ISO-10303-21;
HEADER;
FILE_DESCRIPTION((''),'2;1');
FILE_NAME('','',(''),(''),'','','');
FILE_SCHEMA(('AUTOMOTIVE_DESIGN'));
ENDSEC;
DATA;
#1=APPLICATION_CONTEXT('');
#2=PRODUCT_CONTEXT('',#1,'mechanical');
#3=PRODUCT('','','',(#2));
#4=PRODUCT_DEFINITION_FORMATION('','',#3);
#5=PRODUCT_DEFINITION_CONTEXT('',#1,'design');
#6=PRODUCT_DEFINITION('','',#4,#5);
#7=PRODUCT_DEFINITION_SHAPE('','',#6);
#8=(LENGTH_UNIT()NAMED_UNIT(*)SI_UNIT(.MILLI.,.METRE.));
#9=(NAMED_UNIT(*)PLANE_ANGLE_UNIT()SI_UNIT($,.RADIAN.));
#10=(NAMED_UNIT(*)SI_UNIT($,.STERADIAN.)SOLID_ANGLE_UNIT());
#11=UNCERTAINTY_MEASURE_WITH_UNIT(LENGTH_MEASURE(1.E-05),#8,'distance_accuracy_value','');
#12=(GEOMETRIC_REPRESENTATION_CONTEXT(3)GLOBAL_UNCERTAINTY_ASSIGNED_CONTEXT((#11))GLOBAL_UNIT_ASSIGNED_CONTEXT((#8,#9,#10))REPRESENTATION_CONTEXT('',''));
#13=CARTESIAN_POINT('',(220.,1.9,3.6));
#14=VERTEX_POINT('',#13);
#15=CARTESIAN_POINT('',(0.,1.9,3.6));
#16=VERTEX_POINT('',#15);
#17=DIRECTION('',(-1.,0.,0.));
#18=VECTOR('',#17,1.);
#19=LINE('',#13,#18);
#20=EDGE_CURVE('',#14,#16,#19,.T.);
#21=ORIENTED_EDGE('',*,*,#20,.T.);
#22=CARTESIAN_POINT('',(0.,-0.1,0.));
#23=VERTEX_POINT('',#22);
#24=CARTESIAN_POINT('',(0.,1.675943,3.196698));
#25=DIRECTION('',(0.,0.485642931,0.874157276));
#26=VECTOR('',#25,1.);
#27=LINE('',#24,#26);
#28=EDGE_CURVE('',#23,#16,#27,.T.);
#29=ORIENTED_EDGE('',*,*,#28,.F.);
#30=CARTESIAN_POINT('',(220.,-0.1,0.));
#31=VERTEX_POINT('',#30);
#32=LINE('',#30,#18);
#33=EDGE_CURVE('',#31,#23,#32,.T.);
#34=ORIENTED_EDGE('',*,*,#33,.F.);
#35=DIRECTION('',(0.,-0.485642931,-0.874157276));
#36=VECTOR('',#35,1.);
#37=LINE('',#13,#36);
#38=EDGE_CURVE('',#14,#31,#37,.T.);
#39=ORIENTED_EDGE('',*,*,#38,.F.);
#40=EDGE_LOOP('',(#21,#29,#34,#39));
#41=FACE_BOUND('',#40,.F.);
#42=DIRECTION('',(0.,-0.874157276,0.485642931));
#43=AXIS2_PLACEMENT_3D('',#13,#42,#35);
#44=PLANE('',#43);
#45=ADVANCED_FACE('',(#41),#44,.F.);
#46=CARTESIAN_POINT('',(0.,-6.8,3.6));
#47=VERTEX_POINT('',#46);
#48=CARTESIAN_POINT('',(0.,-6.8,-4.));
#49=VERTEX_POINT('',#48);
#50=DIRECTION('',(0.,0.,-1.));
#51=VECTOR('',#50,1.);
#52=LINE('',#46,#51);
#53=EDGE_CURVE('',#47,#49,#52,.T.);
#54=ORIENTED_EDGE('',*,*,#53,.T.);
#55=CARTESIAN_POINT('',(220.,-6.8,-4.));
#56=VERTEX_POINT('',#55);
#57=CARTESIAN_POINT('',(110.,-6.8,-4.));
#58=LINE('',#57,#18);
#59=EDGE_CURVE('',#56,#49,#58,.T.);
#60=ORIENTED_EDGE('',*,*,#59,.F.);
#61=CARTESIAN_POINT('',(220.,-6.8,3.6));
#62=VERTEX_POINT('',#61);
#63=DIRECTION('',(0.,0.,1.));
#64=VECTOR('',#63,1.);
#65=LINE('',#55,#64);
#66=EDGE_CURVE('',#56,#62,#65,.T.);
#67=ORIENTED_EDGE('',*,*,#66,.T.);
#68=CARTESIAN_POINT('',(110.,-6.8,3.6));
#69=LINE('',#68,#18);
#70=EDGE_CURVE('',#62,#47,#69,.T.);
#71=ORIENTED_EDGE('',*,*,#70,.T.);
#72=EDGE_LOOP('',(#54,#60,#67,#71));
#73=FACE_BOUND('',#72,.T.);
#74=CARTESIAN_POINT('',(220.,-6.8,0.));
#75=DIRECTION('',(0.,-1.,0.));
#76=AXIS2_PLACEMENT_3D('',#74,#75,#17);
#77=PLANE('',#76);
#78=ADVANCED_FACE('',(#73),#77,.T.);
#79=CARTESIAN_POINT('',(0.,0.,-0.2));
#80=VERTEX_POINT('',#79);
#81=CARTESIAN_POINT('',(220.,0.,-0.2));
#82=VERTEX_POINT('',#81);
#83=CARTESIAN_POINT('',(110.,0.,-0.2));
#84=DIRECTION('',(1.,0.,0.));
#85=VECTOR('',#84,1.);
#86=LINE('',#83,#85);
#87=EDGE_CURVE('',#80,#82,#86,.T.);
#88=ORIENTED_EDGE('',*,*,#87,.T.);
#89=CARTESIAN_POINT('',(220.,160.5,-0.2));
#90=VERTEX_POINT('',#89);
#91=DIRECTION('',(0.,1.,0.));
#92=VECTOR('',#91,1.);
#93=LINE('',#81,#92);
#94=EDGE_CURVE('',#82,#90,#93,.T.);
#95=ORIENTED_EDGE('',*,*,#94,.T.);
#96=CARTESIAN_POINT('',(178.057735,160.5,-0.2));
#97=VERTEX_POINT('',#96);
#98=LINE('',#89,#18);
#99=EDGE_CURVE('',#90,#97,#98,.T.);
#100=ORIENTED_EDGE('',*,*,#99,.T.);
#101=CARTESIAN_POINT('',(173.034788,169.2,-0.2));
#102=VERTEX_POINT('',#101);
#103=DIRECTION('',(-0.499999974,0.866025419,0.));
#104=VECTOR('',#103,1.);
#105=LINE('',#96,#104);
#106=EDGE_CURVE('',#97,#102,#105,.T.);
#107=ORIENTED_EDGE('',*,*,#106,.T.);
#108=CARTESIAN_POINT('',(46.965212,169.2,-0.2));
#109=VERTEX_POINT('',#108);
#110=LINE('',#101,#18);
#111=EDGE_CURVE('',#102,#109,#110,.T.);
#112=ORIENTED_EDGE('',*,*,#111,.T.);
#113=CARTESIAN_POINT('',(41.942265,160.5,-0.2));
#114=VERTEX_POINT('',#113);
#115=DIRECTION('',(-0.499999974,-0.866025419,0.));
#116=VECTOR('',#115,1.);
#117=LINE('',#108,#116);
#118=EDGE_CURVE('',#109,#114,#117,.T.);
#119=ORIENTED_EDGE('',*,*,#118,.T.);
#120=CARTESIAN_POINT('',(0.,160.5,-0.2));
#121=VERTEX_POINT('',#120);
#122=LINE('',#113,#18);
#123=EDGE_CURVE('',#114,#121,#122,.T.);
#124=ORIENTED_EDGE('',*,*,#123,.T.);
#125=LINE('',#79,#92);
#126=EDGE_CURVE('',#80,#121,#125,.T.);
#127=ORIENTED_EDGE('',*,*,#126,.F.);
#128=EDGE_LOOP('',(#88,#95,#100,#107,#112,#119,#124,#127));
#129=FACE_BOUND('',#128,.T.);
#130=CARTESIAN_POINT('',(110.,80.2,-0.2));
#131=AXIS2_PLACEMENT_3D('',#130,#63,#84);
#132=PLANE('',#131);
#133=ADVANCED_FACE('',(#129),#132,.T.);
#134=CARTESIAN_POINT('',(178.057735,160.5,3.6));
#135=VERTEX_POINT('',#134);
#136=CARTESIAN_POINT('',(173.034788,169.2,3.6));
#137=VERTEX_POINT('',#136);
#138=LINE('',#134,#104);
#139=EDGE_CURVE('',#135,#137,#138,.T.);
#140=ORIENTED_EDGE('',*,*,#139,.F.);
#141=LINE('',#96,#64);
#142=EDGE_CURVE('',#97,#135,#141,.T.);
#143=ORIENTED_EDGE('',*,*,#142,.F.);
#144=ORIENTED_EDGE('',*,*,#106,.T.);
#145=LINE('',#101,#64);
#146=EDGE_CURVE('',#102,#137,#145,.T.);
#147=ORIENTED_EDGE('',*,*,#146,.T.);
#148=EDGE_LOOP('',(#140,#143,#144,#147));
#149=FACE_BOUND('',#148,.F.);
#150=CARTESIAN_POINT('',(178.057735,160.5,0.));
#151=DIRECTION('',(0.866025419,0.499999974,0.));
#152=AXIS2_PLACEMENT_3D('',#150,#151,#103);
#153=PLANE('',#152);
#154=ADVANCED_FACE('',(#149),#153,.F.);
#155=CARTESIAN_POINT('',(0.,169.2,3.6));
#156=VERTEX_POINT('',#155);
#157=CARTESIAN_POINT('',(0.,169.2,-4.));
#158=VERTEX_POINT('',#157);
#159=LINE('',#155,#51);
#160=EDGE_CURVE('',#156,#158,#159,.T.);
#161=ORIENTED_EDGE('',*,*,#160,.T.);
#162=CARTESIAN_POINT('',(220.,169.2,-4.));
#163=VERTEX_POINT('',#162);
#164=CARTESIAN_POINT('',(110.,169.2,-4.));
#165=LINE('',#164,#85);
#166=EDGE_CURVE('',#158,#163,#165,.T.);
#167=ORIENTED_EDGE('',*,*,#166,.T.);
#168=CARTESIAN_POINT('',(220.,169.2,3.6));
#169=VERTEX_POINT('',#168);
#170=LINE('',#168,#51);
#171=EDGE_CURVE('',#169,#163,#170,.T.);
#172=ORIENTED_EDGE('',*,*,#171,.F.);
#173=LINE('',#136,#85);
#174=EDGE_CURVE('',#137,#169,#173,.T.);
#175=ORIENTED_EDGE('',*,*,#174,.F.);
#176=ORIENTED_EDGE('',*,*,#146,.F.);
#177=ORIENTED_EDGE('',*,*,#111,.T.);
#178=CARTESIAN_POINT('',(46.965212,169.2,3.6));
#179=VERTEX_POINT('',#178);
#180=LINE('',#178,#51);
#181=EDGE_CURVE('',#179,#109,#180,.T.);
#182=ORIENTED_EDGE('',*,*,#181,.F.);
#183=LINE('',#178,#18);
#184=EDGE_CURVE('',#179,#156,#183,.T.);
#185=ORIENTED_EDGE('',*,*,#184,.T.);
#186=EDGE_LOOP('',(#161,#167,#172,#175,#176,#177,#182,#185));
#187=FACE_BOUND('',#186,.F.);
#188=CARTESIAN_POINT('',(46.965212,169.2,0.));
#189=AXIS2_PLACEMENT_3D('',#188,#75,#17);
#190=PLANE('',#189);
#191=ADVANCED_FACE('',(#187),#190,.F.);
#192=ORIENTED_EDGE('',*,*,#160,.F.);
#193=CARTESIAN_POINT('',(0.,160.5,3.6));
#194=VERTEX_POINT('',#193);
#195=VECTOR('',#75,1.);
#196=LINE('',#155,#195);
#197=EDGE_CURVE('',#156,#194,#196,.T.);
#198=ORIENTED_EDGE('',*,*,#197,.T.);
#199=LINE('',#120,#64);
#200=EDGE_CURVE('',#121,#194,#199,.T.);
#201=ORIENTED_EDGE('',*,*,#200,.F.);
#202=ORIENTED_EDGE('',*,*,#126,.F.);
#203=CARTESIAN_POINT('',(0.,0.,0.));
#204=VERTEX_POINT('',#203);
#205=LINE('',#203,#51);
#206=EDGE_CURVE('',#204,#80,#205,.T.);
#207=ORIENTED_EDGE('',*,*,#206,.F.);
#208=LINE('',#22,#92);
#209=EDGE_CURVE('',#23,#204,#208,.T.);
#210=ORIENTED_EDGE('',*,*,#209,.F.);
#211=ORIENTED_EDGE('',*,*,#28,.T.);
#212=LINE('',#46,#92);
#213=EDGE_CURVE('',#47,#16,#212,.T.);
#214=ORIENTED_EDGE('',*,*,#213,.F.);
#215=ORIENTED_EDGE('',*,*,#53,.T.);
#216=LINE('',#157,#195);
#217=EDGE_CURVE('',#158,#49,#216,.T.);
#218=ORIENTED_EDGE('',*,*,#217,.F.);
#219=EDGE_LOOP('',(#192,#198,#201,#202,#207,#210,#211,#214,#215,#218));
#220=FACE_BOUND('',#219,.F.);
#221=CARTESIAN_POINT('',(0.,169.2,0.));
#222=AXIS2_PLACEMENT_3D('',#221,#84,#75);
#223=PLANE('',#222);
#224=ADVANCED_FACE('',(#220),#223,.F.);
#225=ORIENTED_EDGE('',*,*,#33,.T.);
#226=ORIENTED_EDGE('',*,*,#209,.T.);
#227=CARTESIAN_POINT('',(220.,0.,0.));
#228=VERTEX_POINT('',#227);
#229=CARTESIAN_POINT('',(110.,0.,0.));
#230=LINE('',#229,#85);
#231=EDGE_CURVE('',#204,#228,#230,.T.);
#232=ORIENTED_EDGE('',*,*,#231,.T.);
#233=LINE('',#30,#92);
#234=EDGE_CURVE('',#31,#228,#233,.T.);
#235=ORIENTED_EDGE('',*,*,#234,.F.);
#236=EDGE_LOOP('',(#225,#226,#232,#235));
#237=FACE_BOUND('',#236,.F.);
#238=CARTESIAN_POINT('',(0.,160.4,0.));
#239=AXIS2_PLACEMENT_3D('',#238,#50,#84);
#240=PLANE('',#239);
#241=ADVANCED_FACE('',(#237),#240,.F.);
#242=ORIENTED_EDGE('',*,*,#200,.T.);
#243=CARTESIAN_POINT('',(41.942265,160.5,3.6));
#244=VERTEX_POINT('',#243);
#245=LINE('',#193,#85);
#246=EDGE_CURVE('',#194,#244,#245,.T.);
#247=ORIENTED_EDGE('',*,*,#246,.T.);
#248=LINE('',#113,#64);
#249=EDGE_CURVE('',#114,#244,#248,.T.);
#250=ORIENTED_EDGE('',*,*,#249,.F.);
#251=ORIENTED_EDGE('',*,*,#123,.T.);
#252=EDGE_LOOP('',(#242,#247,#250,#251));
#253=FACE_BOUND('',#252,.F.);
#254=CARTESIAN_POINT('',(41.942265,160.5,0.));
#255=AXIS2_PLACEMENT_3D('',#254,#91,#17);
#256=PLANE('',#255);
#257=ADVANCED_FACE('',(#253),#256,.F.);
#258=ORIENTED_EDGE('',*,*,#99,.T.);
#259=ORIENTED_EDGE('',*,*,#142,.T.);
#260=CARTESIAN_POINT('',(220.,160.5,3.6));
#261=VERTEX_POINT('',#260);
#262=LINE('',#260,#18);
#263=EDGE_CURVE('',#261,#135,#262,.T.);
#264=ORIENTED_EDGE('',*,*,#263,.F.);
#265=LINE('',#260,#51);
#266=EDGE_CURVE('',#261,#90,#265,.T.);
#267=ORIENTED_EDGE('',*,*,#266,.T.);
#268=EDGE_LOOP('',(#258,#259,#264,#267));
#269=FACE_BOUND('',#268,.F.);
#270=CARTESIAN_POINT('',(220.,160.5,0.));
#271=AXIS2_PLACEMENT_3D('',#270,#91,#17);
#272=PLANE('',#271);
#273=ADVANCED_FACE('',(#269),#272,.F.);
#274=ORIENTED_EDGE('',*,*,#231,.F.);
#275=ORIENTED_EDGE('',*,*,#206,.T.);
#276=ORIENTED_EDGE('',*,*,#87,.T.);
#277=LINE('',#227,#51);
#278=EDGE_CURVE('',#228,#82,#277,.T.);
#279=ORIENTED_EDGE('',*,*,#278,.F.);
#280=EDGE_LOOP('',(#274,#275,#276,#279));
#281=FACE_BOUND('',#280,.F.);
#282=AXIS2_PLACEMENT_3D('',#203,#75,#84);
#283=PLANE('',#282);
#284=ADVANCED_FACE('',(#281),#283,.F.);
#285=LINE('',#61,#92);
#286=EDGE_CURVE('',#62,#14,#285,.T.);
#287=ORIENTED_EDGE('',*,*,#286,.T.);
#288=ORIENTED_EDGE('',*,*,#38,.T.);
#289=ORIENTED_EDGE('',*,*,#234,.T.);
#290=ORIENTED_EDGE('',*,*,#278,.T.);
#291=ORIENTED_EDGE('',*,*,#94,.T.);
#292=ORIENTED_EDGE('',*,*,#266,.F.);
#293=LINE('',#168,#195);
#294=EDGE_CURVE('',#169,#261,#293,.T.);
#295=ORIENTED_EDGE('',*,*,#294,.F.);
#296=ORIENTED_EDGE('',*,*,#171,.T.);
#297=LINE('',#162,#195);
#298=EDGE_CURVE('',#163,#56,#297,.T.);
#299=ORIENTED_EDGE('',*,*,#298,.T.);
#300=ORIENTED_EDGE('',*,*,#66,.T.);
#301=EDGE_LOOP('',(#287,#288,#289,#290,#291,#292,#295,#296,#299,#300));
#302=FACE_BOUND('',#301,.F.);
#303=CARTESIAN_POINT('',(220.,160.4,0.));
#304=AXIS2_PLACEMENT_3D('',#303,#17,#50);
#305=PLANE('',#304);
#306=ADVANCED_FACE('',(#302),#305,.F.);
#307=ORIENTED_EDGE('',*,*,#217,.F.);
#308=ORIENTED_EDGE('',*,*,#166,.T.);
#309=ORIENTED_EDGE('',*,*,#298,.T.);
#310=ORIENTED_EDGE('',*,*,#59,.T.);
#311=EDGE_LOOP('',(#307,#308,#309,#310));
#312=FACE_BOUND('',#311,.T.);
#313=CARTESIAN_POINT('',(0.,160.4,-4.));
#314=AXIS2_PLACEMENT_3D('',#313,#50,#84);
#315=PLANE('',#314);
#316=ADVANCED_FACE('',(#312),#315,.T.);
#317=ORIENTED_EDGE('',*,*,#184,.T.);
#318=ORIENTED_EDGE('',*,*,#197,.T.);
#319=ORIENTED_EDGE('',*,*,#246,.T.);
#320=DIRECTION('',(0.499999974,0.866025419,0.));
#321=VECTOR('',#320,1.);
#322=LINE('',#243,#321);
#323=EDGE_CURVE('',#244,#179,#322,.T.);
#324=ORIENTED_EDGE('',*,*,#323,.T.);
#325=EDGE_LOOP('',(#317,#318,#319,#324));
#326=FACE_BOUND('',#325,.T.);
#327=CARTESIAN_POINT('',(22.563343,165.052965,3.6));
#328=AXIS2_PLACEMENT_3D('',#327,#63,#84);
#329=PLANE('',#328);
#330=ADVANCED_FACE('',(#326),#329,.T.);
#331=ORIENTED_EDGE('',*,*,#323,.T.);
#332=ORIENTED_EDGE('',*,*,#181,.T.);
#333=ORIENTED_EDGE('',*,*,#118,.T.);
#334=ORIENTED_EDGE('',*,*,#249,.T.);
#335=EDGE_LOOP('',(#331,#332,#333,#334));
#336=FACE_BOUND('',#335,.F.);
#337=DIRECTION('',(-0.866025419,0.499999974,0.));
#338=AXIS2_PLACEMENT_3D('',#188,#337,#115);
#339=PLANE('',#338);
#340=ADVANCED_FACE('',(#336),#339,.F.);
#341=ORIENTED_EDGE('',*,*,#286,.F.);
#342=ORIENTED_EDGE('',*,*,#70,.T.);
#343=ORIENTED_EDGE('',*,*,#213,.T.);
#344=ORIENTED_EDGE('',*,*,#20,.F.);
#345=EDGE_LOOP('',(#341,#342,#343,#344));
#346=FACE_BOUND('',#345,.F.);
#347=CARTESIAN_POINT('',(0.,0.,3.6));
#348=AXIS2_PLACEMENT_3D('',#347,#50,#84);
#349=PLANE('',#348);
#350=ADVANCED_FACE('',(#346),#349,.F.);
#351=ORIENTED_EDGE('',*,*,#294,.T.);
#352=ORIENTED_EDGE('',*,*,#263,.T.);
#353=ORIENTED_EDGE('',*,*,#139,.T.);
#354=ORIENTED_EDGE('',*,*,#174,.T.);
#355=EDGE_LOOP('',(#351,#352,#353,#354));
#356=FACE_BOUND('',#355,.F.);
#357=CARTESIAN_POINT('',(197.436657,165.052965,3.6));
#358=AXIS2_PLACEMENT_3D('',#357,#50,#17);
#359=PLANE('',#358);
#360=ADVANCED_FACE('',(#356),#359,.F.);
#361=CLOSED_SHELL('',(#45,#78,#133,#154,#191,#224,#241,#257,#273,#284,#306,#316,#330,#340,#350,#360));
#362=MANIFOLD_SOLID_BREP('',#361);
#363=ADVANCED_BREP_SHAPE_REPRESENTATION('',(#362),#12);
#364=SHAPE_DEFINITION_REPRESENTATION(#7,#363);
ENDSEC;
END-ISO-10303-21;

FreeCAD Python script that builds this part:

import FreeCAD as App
import Part
import Sketcher

V = App.Vector
Q = App.Units.Quantity


def add_polygon(sketch, points):
    """Adds a closed chain of lines whose ends are joined by coincident constraints."""
    first, n = sketch.GeometryCount, len(points)
    for a, b in zip(points, points[1:] + points[:1]):
        sketch.addGeometry(Part.LineSegment(App.Vector(*a, 0), App.Vector(*b, 0)), False)
    for i in range(n):
        sketch.addConstraint(Sketcher.Constraint("Coincident", first + i, 2, first + (i + 1) % n, 1))

doc = App.newDocument("Part")
body = doc.addObject("PartDesign::Body", "Body")

# Sketch on XY plane
sketch1 = doc.addObject("Sketcher::SketchObject", "Sketch")
body.addObject(sketch1)
sketch1.AttachmentSupport = (doc.XY_Plane, [""])
sketch1.MapMode = "FlatFace"
add_polygon(sketch1, [(0, 160.4), (0, 0), (220, 0), (220, 160.4)])  # lines 0-3
sketch1.addConstraint([
    Sketcher.Constraint("Vertical", 0),
    Sketcher.Constraint("Horizontal", 1),
    Sketcher.Constraint("Vertical", 2),
    Sketcher.Constraint("Horizontal", 3),
    Sketcher.Constraint("Coincident", 0, 2, -1, 1),
    Sketcher.Constraint("DistanceX", 1, 1, 1, 2, Q("220 mm")),
    Sketcher.Constraint("DistanceY", 0, 2, 0, 1, Q("160.4 mm")),
])
pad1 = doc.addObject("PartDesign::Pad", "Pad")
body.addObject(pad1)
pad1.Profile = sketch1
pad1.Length = 4
pad1.Reversed = True

# Sketch on XZ plane
sketch2 = doc.addObject("Sketcher::SketchObject", "Sketch001")
body.addObject(sketch2)
sketch2.AttachmentSupport = (doc.XZ_Plane, [""])
sketch2.MapMode = "FlatFace"
add_polygon(sketch2, [(220, -4), (220, 0), (0, 0), (0, -4)])  # lines 0-3
sketch2.addConstraint([
    Sketcher.Constraint("Vertical", 0),
    Sketcher.Constraint("Horizontal", 1),
    Sketcher.Constraint("Vertical", 2),
    Sketcher.Constraint("Horizontal", 3),
    Sketcher.Constraint("Coincident", 1, 2, -1, 1),
    Sketcher.Constraint("DistanceX", 1, 2, 1, 1, Q("220 mm")),
    Sketcher.Constraint("DistanceY", 0, 1, 0, 2, Q("4 mm")),
])
pad2 = doc.addObject("PartDesign::Pad", "Pad001")
body.addObject(pad2)
pad2.Profile = sketch2
pad2.Length = 6.8

# Sketch on XY plane
sketch3 = doc.addObject("Sketcher::SketchObject", "Sketch002")
body.addObject(sketch3)
sketch3.AttachmentSupport = (doc.XY_Plane, [""])
sketch3.MapMode = "FlatFace"
add_polygon(sketch3, [(0, -6.8), (220, -6.8), (220, 0), (0, 0)])  # lines 0-3
sketch3.addConstraint([
    Sketcher.Constraint("Horizontal", 0),
    Sketcher.Constraint("Vertical", 1),
    Sketcher.Constraint("Horizontal", 2),
    Sketcher.Constraint("Vertical", 3),
    Sketcher.Constraint("Coincident", 2, 2, -1, 1),
    Sketcher.Constraint("DistanceX", 0, 1, 0, 2, Q("220 mm")),
    Sketcher.Constraint("DistanceY", 1, 1, 1, 2, Q("6.8 mm")),
])
pad3 = doc.addObject("PartDesign::Pad", "Pad002")
body.addObject(pad3)
pad3.Profile = sketch3
pad3.Length = 3.6

# Sketch on XZ plane
sketch4 = doc.addObject("Sketcher::SketchObject", "Sketch003")
body.addObject(sketch4)
sketch4.AttachmentSupport = (doc.XZ_Plane, [""])
sketch4.MapMode = "FlatFace"
add_polygon(sketch4, [(0, 0), (0, 3.6), (220, 3.6), (220, 0)])  # lines 0-3
sketch4.addConstraint([
    Sketcher.Constraint("Vertical", 0),
    Sketcher.Constraint("Horizontal", 1),
    Sketcher.Constraint("Vertical", 2),
    Sketcher.Constraint("Horizontal", 3),
    Sketcher.Constraint("Coincident", 3, 2, -1, 1),
    Sketcher.Constraint("DistanceX", 1, 1, 1, 2, Q("220 mm")),
    Sketcher.Constraint("DistanceY", 0, 1, 0, 2, Q("3.6 mm")),
])
pad4 = doc.addObject("PartDesign::Pad", "Pad003")
body.addObject(pad4)
pad4.Profile = sketch4
pad4.Length = 2
pad4.Reversed = True

# Sketch on YZ plane
sketch5 = doc.addObject("Sketcher::SketchObject", "Sketch004")
body.addObject(sketch5)
sketch5.AttachmentSupport = (doc.YZ_Plane, [""])
sketch5.MapMode = "FlatFace"
sketch5.AttachmentOffset = App.Placement(V(0, 0, 220), App.Rotation())
add_polygon(sketch5, [(-0.1, 0), (2, 0), (2, 3.6), (1.9, 3.6)])  # lines 0-3
sketch5.addConstraint([
    Sketcher.Constraint("Horizontal", 0),
    Sketcher.Constraint("Vertical", 1),
    Sketcher.Constraint("Horizontal", 2),
    Sketcher.Constraint("PointOnObject", 0, 2, -1),
    Sketcher.Constraint("DistanceX", 0, 1, 0, 2, Q("2.1 mm")),
    Sketcher.Constraint("DistanceX", 2, 2, 2, 1, Q("0.1 mm")),
    Sketcher.Constraint("DistanceY", 1, 1, 1, 2, Q("3.6 mm")),
    Sketcher.Constraint("DistanceX", -1, 1, 0, 2, Q("2 mm")),
])
pocket1 = doc.addObject("PartDesign::Pocket", "Pocket")
body.addObject(pocket1)
pocket1.Profile = sketch5
pocket1.Type = "ThroughAll"

# Sketch on XZ plane
sketch6 = doc.addObject("Sketcher::SketchObject", "Sketch005")
body.addObject(sketch6)
sketch6.AttachmentSupport = (doc.XZ_Plane, [""])
sketch6.MapMode = "FlatFace"
sketch6.AttachmentOffset = App.Placement(V(0, 0, -160.4), App.Rotation())
add_polygon(sketch6, [(0, -4), (0, 0), (220, 0), (220, -4)])  # lines 0-3
sketch6.addConstraint([
    Sketcher.Constraint("Vertical", 0),
    Sketcher.Constraint("Horizontal", 1),
    Sketcher.Constraint("Vertical", 2),
    Sketcher.Constraint("Horizontal", 3),
    Sketcher.Constraint("Coincident", 0, 2, -1, 1),
    Sketcher.Constraint("DistanceX", 1, 1, 1, 2, Q("220 mm")),
    Sketcher.Constraint("DistanceY", 0, 1, 0, 2, Q("4 mm")),
])
pad5 = doc.addObject("PartDesign::Pad", "Pad004")
body.addObject(pad5)
pad5.Profile = sketch6
pad5.Length = 8.8
pad5.Reversed = True

# Sketch on XY plane
sketch7 = doc.addObject("Sketcher::SketchObject", "Sketch006")
body.addObject(sketch7)
sketch7.AttachmentSupport = (doc.XY_Plane, [""])
sketch7.MapMode = "FlatFace"
add_polygon(sketch7, [(0, 169.2), (0, 160.5), (41.942265, 160.5), (46.965212, 169.2)])  # lines 0-3
add_polygon(sketch7, [(220, 169.2), (173.034788, 169.2), (178.057735, 160.5), (220, 160.5)])  # lines 4-7
sketch7.addConstraint([
    Sketcher.Constraint("Vertical", 0),
    Sketcher.Constraint("Horizontal", 1),
    Sketcher.Constraint("Horizontal", 3),
    Sketcher.Constraint("Horizontal", 4),
    Sketcher.Constraint("Horizontal", 6),
    Sketcher.Constraint("Vertical", 7),
    Sketcher.Constraint("PointOnObject", 0, 2, -2),
    Sketcher.Constraint("Horizontal", 3, 2, 4, 2),
    Sketcher.Constraint("Horizontal", 1, 2, 5, 2),
    Sketcher.Constraint("Equal", 3, 4),
    Sketcher.Constraint("Equal", 1, 6),
    Sketcher.Constraint("Angle", 2, Q("60.000002 deg")),
    Sketcher.Constraint("DistanceY", 0, 2, 0, 1, Q("8.7 mm")),
    Sketcher.Constraint("DistanceX", -1, 1, 6, 2, Q("220 mm")),
    Sketcher.Constraint("DistanceY", -1, 1, 0, 2, Q("160.5 mm")),
    Sketcher.Constraint("DistanceX", 1, 1, 1, 2, Q("41.942265 mm")),
])
pad6 = doc.addObject("PartDesign::Pad", "Pad005")
body.addObject(pad6)
pad6.Profile = sketch7
pad6.Length = 3.6

# Sketch on XY plane
sketch8 = doc.addObject("Sketcher::SketchObject", "Sketch007")
body.addObject(sketch8)
sketch8.AttachmentSupport = (doc.XY_Plane, [""])
sketch8.MapMode = "FlatFace"
add_polygon(sketch8, [(0, 160.4), (0, 0), (220, 0), (220, 160.4)])  # lines 0-3
sketch8.addConstraint([
    Sketcher.Constraint("Vertical", 0),
    Sketcher.Constraint("Horizontal", 1),
    Sketcher.Constraint("Vertical", 2),
    Sketcher.Constraint("Horizontal", 3),
    Sketcher.Constraint("Coincident", 0, 2, -1, 1),
    Sketcher.Constraint("DistanceX", 1, 1, 1, 2, Q("220 mm")),
    Sketcher.Constraint("DistanceY", 0, 2, 0, 1, Q("160.4 mm")),
])
pocket2 = doc.addObject("PartDesign::Pocket", "Pocket001")
body.addObject(pocket2)
pocket2.Profile = sketch8
pocket2.Length = 0.2

# Sketch on XY plane
sketch9 = doc.addObject("Sketcher::SketchObject", "Sketch008")
body.addObject(sketch9)
sketch9.AttachmentSupport = (doc.XY_Plane, [""])
sketch9.MapMode = "FlatFace"
add_polygon(sketch9, [(0, 160.4), (220, 160.4), (220, 160.5), (178.057735, 160.5), (173.034788, 169.2), (46.965212, 169.2), (41.942265, 160.5), (0, 160.5)])  # lines 0-7
sketch9.addConstraint([
    Sketcher.Constraint("Horizontal", 0),
    Sketcher.Constraint("Vertical", 1),
    Sketcher.Constraint("Horizontal", 2),
    Sketcher.Constraint("Horizontal", 4),
    Sketcher.Constraint("Horizontal", 6),
    Sketcher.Constraint("Vertical", 7),
    Sketcher.Constraint("PointOnObject", 6, 2, -2),
    Sketcher.Constraint("Horizontal", 2, 2, 5, 2),
    Sketcher.Constraint("Equal", 2, 6),
    Sketcher.Constraint("Equal", 3, 5),
    Sketcher.Constraint("DistanceX", 0, 1, 0, 2, Q("220 mm")),
    Sketcher.Constraint("Angle", 3, Q("119.999998 deg")),
    Sketcher.Constraint("DistanceY", 1, 1, 1, 2, Q("0.1 mm")),
    Sketcher.Constraint("DistanceY", -1, 1, 0, 2, Q("160.4 mm")),
    Sketcher.Constraint("DistanceY", -1, 1, 3, 2, Q("169.2 mm")),
    Sketcher.Constraint("DistanceX", 2, 2, 2, 1, Q("41.942265 mm")),
])
pocket3 = doc.addObject("PartDesign::Pocket", "Pocket002")
body.addObject(pocket3)
pocket3.Profile = sketch9
pocket3.Length = 0.2

doc.recompute()
